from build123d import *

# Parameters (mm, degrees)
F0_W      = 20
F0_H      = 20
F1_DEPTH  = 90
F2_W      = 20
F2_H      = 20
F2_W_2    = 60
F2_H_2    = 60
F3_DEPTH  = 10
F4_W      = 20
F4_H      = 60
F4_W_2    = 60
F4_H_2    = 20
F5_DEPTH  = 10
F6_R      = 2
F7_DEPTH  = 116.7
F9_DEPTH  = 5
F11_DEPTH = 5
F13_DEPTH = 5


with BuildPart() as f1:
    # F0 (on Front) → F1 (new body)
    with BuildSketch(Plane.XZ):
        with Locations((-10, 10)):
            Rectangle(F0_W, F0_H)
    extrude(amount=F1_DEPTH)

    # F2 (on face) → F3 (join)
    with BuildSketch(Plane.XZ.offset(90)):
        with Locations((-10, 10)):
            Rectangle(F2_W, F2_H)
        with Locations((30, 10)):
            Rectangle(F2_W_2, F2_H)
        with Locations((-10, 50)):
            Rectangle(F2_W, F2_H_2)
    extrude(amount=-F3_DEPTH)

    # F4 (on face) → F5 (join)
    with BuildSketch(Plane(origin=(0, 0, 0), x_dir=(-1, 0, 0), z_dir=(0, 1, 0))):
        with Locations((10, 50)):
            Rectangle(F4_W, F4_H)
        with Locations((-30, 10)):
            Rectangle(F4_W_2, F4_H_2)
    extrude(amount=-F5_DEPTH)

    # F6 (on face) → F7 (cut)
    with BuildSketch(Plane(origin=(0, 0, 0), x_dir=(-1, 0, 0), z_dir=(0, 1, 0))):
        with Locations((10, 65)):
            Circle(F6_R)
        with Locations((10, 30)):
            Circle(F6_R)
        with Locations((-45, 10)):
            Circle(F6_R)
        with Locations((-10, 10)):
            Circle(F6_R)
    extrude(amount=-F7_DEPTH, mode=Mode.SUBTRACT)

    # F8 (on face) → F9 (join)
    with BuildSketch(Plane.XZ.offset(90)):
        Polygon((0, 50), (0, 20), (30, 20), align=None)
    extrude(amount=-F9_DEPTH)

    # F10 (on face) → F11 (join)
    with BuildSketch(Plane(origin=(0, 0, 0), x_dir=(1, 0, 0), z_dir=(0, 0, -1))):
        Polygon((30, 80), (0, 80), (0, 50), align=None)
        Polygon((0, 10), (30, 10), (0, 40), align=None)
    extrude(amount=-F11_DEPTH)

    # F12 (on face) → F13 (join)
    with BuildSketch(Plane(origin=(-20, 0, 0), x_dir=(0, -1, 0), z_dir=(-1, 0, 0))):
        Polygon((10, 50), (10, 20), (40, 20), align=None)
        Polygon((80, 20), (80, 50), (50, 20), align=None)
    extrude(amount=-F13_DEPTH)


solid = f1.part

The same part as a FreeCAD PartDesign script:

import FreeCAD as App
import Part
import Sketcher

V = App.Vector
Q = App.Units.Quantity

doc = App.newDocument("Part")
body = doc.addObject("PartDesign::Body", "Body")

# Sketch on XZ plane
sketch1 = body.newObject("Sketcher::SketchObject", "Sketch")
sketch1.AttachmentSupport = (doc.getObject("XZ_Plane"), [""])
sketch1.MapMode = "FlatFace"
sketch1.addGeometry([
    Part.LineSegment(V(-20, 20, 0), V(-20, 0, 0)),
    Part.LineSegment(V(-20, 0, 0), V(0, 0, 0)),
    Part.LineSegment(V(0, 0, 0), V(0, 20, 0)),
    Part.LineSegment(V(0, 20, 0), V(-20, 20, 0)),
], False)
sketch1.addConstraint([
    Sketcher.Constraint("Coincident", 0, 2, 1, 1),
    Sketcher.Constraint("Coincident", 1, 2, 2, 1),
    Sketcher.Constraint("Coincident", 2, 2, 3, 1),
    Sketcher.Constraint("Coincident", 3, 2, 0, 1),
    Sketcher.Constraint("Vertical", 0),
    Sketcher.Constraint("Horizontal", 1),
    Sketcher.Constraint("Vertical", 2),
    Sketcher.Constraint("Horizontal", 3),
    Sketcher.Constraint("Coincident", 1, 2, -1, 1),
    Sketcher.Constraint("Equal", 3, 0),
    Sketcher.Constraint("DistanceX", 1, 1, 1, 2, Q("20 mm")),
])
pad1 = body.newObject("PartDesign::Pad", "Pad")
pad1.Profile = sketch1
pad1.Length = 90

# Sketch on XZ plane
sketch2 = body.newObject("Sketcher::SketchObject", "Sketch001")
sketch2.AttachmentSupport = (doc.getObject("XZ_Plane"), [""])
sketch2.MapMode = "FlatFace"
sketch2.AttachmentOffset = App.Placement(V(0, 0, 90), App.Rotation())
sketch2.addGeometry([
    Part.LineSegment(V(-20, 0, 0), V(60, 0, 0)),  # 0
    Part.LineSegment(V(60, 0, 0), V(60, 20, 0)),  # 1
    Part.LineSegment(V(60, 20, 0), V(0, 20, 0)),  # 2
    Part.LineSegment(V(0, 20, 0), V(0, 80, 0)),  # 3
    Part.LineSegment(V(0, 80, 0), V(-20, 80, 0)),  # 4
    Part.LineSegment(V(-20, 80, 0), V(-20, 0, 0)),  # 5
], False)
sketch2.addConstraint([
    Sketcher.Constraint("Coincident", 0, 2, 1, 1),
    Sketcher.Constraint("Coincident", 1, 2, 2, 1),
    Sketcher.Constraint("Coincident", 2, 2, 3, 1),
    Sketcher.Constraint("Coincident", 3, 2, 4, 1),
    Sketcher.Constraint("Coincident", 4, 2, 5, 1),
    Sketcher.Constraint("Coincident", 5, 2, 0, 1),
    Sketcher.Constraint("Horizontal", 0),
    Sketcher.Constraint("Vertical", 1),
    Sketcher.Constraint("Horizontal", 2),
    Sketcher.Constraint("Vertical", 3),
    Sketcher.Constraint("Horizontal", 4),
    Sketcher.Constraint("Vertical", 5),
    Sketcher.Constraint("PointOnObject", 0, 2, -1),
    Sketcher.Constraint("PointOnObject", 2, 2, -2),
    Sketcher.Constraint("Equal", 4, 1),
    Sketcher.Constraint("Equal", 2, 3),
    Sketcher.Constraint("DistanceX", 0, 1, 0, 2, Q("80 mm")),
    Sketcher.Constraint("DistanceX", 2, 2, 2, 1, Q("60 mm")),
])
pad2 = body.newObject("PartDesign::Pad", "Pad001")
pad2.Profile = sketch2
pad2.Length = 10
pad2.Reversed = True

# Sketch on XZ plane
sketch3 = body.newObject("Sketcher::SketchObject", "Sketch002")
sketch3.AttachmentSupport = (doc.getObject("XZ_Plane"), [""])
sketch3.MapMode = "FlatFace"
sketch3.addGeometry([
    Part.LineSegment(V(0, 80, 0), V(0, 20, 0)),  # 0
    Part.LineSegment(V(0, 20, 0), V(-20, 20, 0)),  # 1
    Part.LineSegment(V(-20, 20, 0), V(-20, 80, 0)),  # 2
    Part.LineSegment(V(-20, 80, 0), V(0, 80, 0)),  # 3
    Part.LineSegment(V(60, 20, 0), V(60, 0, 0)),  # 4
    Part.LineSegment(V(60, 0, 0), V(0, 0, 0)),  # 5
    Part.LineSegment(V(0, 0, 0), V(0, 20, 0)),  # 6
    Part.LineSegment(V(0, 20, 0), V(60, 20, 0)),  # 7
], False)
sketch3.addConstraint([
    Sketcher.Constraint("Coincident", 0, 2, 1, 1),
    Sketcher.Constraint("Coincident", 1, 2, 2, 1),
    Sketcher.Constraint("Coincident", 2, 2, 3, 1),
    Sketcher.Constraint("Coincident", 3, 2, 0, 1),
    Sketcher.Constraint("Coincident", 4, 2, 5, 1),
    Sketcher.Constraint("Coincident", 5, 2, 6, 1),
    Sketcher.Constraint("Coincident", 6, 2, 7, 1),
    Sketcher.Constraint("Coincident", 7, 2, 4, 1),
    Sketcher.Constraint("Vertical", 0),
    Sketcher.Constraint("Horizontal", 1),
    Sketcher.Constraint("Vertical", 2),
    Sketcher.Constraint("Horizontal", 3),
    Sketcher.Constraint("Vertical", 4),
    Sketcher.Constraint("Horizontal", 5),
    Sketcher.Constraint("Vertical", 6),
    Sketcher.Constraint("Horizontal", 7),
    Sketcher.Constraint("Coincident", 5, 2, -1, 1),
    Sketcher.Constraint("Coincident", 6, 2, 0, 2),
    Sketcher.Constraint("Equal", 7, 0),
    Sketcher.Constraint("Equal", 3, 4),
    Sketcher.Constraint("DistanceX", 1, 2, 1, 1, Q("20 mm")),
    Sketcher.Constraint("DistanceX", 5, 2, 5, 1, Q("60 mm")),
])
pad3 = body.newObject("PartDesign::Pad", "Pad002")
pad3.Profile = sketch3
pad3.Length = 10

# Sketch on XZ plane
sketch4 = body.newObject("Sketcher::SketchObject", "Sketch003")
sketch4.AttachmentSupport = (doc.getObject("XZ_Plane"), [""])
sketch4.MapMode = "FlatFace"
sketch4.addGeometry([
    Part.Circle(V(-10, 65, 0), V(0, 0, 1), 2),
    Part.Circle(V(-10, 30, 0), V(0, 0, 1), 2),
    Part.Circle(V(45, 10, 0), V(0, 0, 1), 2),
    Part.Circle(V(10, 10, 0), V(0, 0, 1), 2),
], False)
sketch4.addConstraint([
    Sketcher.Constraint("Equal", 0, 1),
    Sketcher.Constraint("Equal", 1, 2),
    Sketcher.Constraint("Equal", 2, 3),
    Sketcher.Constraint("Horizontal", 2, 3, 3, 3),
    Sketcher.Constraint("Vertical", 0, 3, 1, 3),
    Sketcher.Constraint("Diameter", 0, Q("4 mm")),
    Sketcher.Constraint("DistanceX", 0, 3, -1, 1, Q("10 mm")),
    Sketcher.Constraint("DistanceY", -1, 1, 0, 3, Q("65 mm")),
    Sketcher.Constraint("DistanceY", -1, 1, 1, 3, Q("30 mm")),
    Sketcher.Constraint("DistanceX", -1, 1, 2, 3, Q("45 mm")),
    Sketcher.Constraint("DistanceY", -1, 1, 2, 3, Q("10 mm")),
    Sketcher.Constraint("DistanceX", -1, 1, 3, 3, Q("10 mm")),
])
pocket1 = body.newObject("PartDesign::Pocket", "Pocket")
pocket1.Profile = sketch4
pocket1.Length = 116.7
pocket1.Reversed = True

# Sketch on XZ plane
sketch5 = body.newObject("Sketcher::SketchObject", "Sketch004")
sketch5.AttachmentSupport = (doc.getObject("XZ_Plane"), [""])
sketch5.MapMode = "FlatFace"
sketch5.AttachmentOffset = App.Placement(V(0, 0, 90), App.Rotation())
sketch5.addGeometry([
    Part.LineSegment(V(0, 50, 0), V(0, 20, 0)),
    Part.LineSegment(V(0, 20, 0), V(30, 20, 0)),
    Part.LineSegment(V(30, 20, 0), V(0, 50, 0)),
], False)
sketch5.addConstraint([
    Sketcher.Constraint("Coincident", 0, 2, 1, 1),
    Sketcher.Constraint("Coincident", 1, 2, 2, 1),
    Sketcher.Constraint("Coincident", 2, 2, 0, 1),
    Sketcher.Constraint("Vertical", 0),
    Sketcher.Constraint("Horizontal", 1),
    Sketcher.Constraint("PointOnObject", 0, 2, -2),
    Sketcher.Constraint("Equal", 1, 0),
    Sketcher.Constraint("DistanceX", 1, 1, 1, 2, Q("30 mm")),
    Sketcher.Constraint("DistanceY", -1, 1, 0, 2, Q("20 mm")),
])
pad4 = body.newObject("PartDesign::Pad", "Pad003")
pad4.Profile = sketch5
pad4.Length = 5
pad4.Reversed = True

# Sketch on XY plane
sketch6 = body.newObject("Sketcher::SketchObject", "Sketch005")
sketch6.AttachmentSupport = (doc.getObject("XY_Plane"), [""])
sketch6.MapMode = "FlatFace"
sketch6.addGeometry([
    Part.LineSegment(V(30, -80, 0), V(0, -80, 0)),  # 0
    Part.LineSegment(V(0, -80, 0), V(0, -50, 0)),  # 1
    Part.LineSegment(V(0, -50, 0), V(30, -80, 0)),  # 2
    Part.LineSegment(V(0, -10, 0), V(30, -10, 0)),  # 3
    Part.LineSegment(V(30, -10, 0), V(0, -40, 0)),  # 4
    Part.LineSegment(V(0, -40, 0), V(0, -10, 0)),  # 5
], False)
sketch6.addConstraint([
    Sketcher.Constraint("Coincident", 0, 2, 1, 1),
    Sketcher.Constraint("Coincident", 1, 2, 2, 1),
    Sketcher.Constraint("Coincident", 2, 2, 0, 1),
    Sketcher.Constraint("Coincident", 3, 2, 4, 1),
    Sketcher.Constraint("Coincident", 4, 2, 5, 1),
    Sketcher.Constraint("Coincident", 5, 2, 3, 1),
    Sketcher.Constraint("Horizontal", 0),
    Sketcher.Constraint("Vertical", 1),
    Sketcher.Constraint("Horizontal", 3),
    Sketcher.Constraint("Vertical", 5),
    Sketcher.Constraint("PointOnObject", 0, 2, -2),
    Sketcher.Constraint("PointOnObject", 4, 2, -2),
    Sketcher.Constraint("Perpendicular", 2, 4),
    Sketcher.Constraint("Vertical", 2, 2, 3, 2),
    Sketcher.Constraint("Equal", 3, 1),
    Sketcher.Constraint("DistanceX", 0, 2, 0, 1, Q("30 mm")),
    Sketcher.Constraint("DistanceY", 0, 2, -1, 1, Q("80 mm")),
    Sketcher.Constraint("DistanceY", 3, 2, -1, 1, Q("10 mm")),
])
pad5 = body.newObject("PartDesign::Pad", "Pad004")
pad5.Profile = sketch6
pad5.Length = 5

# Sketch on YZ plane
sketch7 = body.newObject("Sketcher::SketchObject", "Sketch006")
sketch7.AttachmentSupport = (doc.getObject("YZ_Plane"), [""])
sketch7.MapMode = "FlatFace"
sketch7.AttachmentOffset = App.Placement(V(0, 0, -20), App.Rotation())
sketch7.addGeometry([
    Part.LineSegment(V(-10, 50, 0), V(-10, 20, 0)),  # 0
    Part.LineSegment(V(-10, 20, 0), V(-40, 20, 0)),  # 1
    Part.LineSegment(V(-40, 20, 0), V(-10, 50, 0)),  # 2
    Part.LineSegment(V(-80, 20, 0), V(-80, 50, 0)),  # 3
    Part.LineSegment(V(-80, 50, 0), V(-50, 20, 0)),  # 4
    Part.LineSegment(V(-50, 20, 0), V(-80, 20, 0)),  # 5
], False)
sketch7.addConstraint([
    Sketcher.Constraint("Coincident", 0, 2, 1, 1),
    Sketcher.Constraint("Coincident", 1, 2, 2, 1),
    Sketcher.Constraint("Coincident", 2, 2, 0, 1),
    Sketcher.Constraint("Coincident", 3, 2, 4, 1),
    Sketcher.Constraint("Coincident", 4, 2, 5, 1),
    Sketcher.Constraint("Coincident", 5, 2, 3, 1),
    Sketcher.Constraint("Vertical", 0),
    Sketcher.Constraint("Horizontal", 1),
    Sketcher.Constraint("Vertical", 3),
    Sketcher.Constraint("Horizontal", 5),
    Sketcher.Constraint("Perpendicular", 2, 4),
    Sketcher.Constraint("Horizontal", 2, 2, 3, 2),
    Sketcher.Constraint("Horizontal", 1, 2, 4, 2),
    Sketcher.Constraint("Equal", 1, 5),
    Sketcher.Constraint("DistanceX", 1, 2, 1, 1, Q("30 mm")),
    Sketcher.Constraint("DistanceX", 0, 2, -1, 1, Q("10 mm")),
    Sketcher.Constraint("DistanceY", -1, 1, 0, 2, Q("20 mm")),
    Sketcher.Constraint("DistanceX", 3, 2, -1, 1, Q("80 mm")),
])
pad6 = body.newObject("PartDesign::Pad", "Pad005")
pad6.Profile = sketch7
pad6.Length = 5

doc.recompute()
